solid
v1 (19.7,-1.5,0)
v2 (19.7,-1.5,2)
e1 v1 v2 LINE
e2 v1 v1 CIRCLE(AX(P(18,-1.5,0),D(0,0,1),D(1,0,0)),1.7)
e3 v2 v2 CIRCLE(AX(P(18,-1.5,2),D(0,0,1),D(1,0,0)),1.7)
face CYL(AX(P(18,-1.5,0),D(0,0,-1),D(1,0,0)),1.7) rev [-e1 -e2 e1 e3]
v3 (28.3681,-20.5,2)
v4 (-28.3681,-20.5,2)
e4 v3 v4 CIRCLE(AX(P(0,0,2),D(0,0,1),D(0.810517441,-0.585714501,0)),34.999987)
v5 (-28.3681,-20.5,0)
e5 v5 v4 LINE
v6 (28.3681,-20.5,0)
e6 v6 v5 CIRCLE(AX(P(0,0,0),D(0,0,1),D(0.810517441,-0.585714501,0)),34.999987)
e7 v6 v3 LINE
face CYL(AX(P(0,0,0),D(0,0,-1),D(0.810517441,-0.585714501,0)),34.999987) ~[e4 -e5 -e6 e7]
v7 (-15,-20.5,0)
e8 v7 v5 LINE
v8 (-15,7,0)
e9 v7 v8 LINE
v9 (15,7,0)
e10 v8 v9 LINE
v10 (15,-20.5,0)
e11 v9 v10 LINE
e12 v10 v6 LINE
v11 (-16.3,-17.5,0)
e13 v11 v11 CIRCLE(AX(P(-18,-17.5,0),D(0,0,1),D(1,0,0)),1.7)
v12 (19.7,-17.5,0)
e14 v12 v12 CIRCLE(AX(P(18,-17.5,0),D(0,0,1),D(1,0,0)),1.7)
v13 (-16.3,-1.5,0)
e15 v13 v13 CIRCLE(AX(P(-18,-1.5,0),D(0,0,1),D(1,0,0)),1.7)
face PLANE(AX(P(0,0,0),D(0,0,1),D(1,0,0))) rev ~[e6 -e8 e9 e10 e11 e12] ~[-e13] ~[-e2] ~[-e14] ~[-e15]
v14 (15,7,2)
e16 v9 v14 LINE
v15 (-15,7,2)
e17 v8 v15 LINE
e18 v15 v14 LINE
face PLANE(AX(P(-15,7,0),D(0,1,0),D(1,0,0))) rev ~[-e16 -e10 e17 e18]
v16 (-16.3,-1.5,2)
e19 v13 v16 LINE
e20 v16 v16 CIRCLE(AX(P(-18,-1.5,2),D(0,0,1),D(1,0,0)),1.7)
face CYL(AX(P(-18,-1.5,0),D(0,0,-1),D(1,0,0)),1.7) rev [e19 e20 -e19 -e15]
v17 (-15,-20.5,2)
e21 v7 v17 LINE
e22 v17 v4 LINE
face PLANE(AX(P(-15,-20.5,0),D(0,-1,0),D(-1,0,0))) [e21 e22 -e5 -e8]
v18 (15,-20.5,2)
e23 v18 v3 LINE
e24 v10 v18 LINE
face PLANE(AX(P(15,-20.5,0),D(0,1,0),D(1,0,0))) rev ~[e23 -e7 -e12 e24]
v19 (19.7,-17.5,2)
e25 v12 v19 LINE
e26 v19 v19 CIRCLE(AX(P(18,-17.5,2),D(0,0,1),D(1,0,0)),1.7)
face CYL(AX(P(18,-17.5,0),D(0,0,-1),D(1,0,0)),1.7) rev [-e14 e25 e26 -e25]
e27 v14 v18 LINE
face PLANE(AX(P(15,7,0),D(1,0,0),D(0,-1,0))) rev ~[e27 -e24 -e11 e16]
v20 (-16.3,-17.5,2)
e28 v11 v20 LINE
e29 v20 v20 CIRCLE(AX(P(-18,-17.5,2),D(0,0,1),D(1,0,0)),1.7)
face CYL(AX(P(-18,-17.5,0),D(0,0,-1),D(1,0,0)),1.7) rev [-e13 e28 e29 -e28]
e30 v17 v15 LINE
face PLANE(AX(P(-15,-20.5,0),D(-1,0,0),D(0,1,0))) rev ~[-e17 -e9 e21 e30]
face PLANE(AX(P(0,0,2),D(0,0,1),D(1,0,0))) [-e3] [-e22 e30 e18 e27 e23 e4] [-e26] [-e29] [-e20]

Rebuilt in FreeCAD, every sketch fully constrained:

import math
import FreeCAD as App
import Part
import Sketcher
from FreeCAD import Vector
Q = App.Units.Quantity

doc = App.newDocument("Part")
params = doc.addObject("Spreadsheet::Sheet", "Params")
for row, (alias, value) in enumerate([
    ("sketch1_radius", "35 mm"),
    ("sketch1_diameter", "3.4 mm"),
    ("sketch1_height", "27.5 mm"),
    ("sketch1_width", "30 mm"),
    ("pad1_length", "2 mm"),
], start=1):
    params.set(f"A{row}", alias)
    params.set(f"B{row}", "=" + value)
    params.setAlias(f"B{row}", alias)

body = doc.addObject("PartDesign::Body", "Body")

# Sketch on XY plane
sketch1 = body.newObject("Sketcher::SketchObject", "Sketch")
sketch1.AttachmentSupport = (doc.getObject("XY_Plane"), [""])
sketch1.MapMode = "FlatFace"
sketch1.addGeometry([
    Part.LineSegment(Vector(-28.3681, -20.5, 0), Vector(-15, -20.5, 0)),  # 0
    Part.LineSegment(Vector(-15, -20.5, 0), Vector(-15, 7, 0)),  # 1
    Part.LineSegment(Vector(-15, 7, 0), Vector(15, 7, 0)),  # 2
    Part.LineSegment(Vector(15, 7, 0), Vector(15, -20.5, 0)),  # 3
    Part.LineSegment(Vector(15, -20.5, 0), Vector(28.3681, -20.5, 0)),  # 4
    Part.ArcOfCircle(Part.Circle(Vector(0, 0, 0), Vector(0, 0, 1), 34.999987), math.radians(-35.853482), math.radians(215.853482)),  # 5
    Part.Circle(Vector(-18, -17.5, 0), Vector(0, 0, 1), 1.7),  # 6
    Part.Circle(Vector(-18, -1.5, 0), Vector(0, 0, 1), 1.7),  # 7
    Part.Circle(Vector(18, -17.5, 0), Vector(0, 0, 1), 1.7),  # 8
    Part.Circle(Vector(18, -1.5, 0), Vector(0, 0, 1), 1.7),  # 9
], False)
sketch1.addConstraint([
    Sketcher.Constraint("Coincident", 0, 2, 1, 1),
    Sketcher.Constraint("Coincident", 1, 2, 2, 1),
    Sketcher.Constraint("Coincident", 2, 2, 3, 1),
    Sketcher.Constraint("Coincident", 3, 2, 4, 1),
    Sketcher.Constraint("Coincident", 4, 2, 5, 1),
    Sketcher.Constraint("Coincident", 5, 2, 0, 1),
    Sketcher.Constraint("Horizontal", 0),
    Sketcher.Constraint("Vertical", 1),
    Sketcher.Constraint("Horizontal", 2),
    Sketcher.Constraint("Vertical", 3),
    Sketcher.Constraint("Horizontal", 4),
    Sketcher.Constraint("Coincident", 5, 3, -1, 1),
    Sketcher.Constraint("Equal", 6, 7),
    Sketcher.Constraint("Equal", 7, 8),
    Sketcher.Constraint("Equal", 8, 9),
    Sketcher.Constraint("Symmetric", 6, 3, 8, 3, -2),
    Sketcher.Constraint("Symmetric", 7, 3, 9, 3, -2),
    Sketcher.Constraint("Symmetric", 0, 2, 3, 2, -2),
    Sketcher.Constraint("Vertical", 6, 3, 7, 3),
    Sketcher.Constraint("Radius", 5, Q("35 mm")),
    Sketcher.Constraint("Diameter", 6, Q("3.4 mm")),
    Sketcher.Constraint("DistanceY", 1, 1, 1, 2, Q("27.5 mm")),
    Sketcher.Constraint("DistanceY", 6, 3, 7, 3, Q("16 mm")),
    Sketcher.Constraint("DistanceX", 6, 3, 0, 2, Q("3 mm")),
    Sketcher.Constraint("DistanceY", 0, 2, 6, 3, Q("3 mm")),
    Sketcher.Constraint("DistanceY", 0, 2, -1, 1, Q("20.5 mm")),
    Sketcher.Constraint("DistanceX", 2, 1, 2, 2, Q("30 mm")),
])
sketch1.setExpression("Constraints[19]", "Params.sketch1_radius")
sketch1.setExpression("Constraints[20]", "Params.sketch1_diameter")
sketch1.setExpression("Constraints[21]", "Params.sketch1_height")
sketch1.setExpression("Constraints[26]", "Params.sketch1_width")
pad1 = body.newObject("PartDesign::Pad", "Pad")
pad1.Profile = sketch1
pad1.setExpression("Length", "Params.pad1_length")

doc.recompute()
